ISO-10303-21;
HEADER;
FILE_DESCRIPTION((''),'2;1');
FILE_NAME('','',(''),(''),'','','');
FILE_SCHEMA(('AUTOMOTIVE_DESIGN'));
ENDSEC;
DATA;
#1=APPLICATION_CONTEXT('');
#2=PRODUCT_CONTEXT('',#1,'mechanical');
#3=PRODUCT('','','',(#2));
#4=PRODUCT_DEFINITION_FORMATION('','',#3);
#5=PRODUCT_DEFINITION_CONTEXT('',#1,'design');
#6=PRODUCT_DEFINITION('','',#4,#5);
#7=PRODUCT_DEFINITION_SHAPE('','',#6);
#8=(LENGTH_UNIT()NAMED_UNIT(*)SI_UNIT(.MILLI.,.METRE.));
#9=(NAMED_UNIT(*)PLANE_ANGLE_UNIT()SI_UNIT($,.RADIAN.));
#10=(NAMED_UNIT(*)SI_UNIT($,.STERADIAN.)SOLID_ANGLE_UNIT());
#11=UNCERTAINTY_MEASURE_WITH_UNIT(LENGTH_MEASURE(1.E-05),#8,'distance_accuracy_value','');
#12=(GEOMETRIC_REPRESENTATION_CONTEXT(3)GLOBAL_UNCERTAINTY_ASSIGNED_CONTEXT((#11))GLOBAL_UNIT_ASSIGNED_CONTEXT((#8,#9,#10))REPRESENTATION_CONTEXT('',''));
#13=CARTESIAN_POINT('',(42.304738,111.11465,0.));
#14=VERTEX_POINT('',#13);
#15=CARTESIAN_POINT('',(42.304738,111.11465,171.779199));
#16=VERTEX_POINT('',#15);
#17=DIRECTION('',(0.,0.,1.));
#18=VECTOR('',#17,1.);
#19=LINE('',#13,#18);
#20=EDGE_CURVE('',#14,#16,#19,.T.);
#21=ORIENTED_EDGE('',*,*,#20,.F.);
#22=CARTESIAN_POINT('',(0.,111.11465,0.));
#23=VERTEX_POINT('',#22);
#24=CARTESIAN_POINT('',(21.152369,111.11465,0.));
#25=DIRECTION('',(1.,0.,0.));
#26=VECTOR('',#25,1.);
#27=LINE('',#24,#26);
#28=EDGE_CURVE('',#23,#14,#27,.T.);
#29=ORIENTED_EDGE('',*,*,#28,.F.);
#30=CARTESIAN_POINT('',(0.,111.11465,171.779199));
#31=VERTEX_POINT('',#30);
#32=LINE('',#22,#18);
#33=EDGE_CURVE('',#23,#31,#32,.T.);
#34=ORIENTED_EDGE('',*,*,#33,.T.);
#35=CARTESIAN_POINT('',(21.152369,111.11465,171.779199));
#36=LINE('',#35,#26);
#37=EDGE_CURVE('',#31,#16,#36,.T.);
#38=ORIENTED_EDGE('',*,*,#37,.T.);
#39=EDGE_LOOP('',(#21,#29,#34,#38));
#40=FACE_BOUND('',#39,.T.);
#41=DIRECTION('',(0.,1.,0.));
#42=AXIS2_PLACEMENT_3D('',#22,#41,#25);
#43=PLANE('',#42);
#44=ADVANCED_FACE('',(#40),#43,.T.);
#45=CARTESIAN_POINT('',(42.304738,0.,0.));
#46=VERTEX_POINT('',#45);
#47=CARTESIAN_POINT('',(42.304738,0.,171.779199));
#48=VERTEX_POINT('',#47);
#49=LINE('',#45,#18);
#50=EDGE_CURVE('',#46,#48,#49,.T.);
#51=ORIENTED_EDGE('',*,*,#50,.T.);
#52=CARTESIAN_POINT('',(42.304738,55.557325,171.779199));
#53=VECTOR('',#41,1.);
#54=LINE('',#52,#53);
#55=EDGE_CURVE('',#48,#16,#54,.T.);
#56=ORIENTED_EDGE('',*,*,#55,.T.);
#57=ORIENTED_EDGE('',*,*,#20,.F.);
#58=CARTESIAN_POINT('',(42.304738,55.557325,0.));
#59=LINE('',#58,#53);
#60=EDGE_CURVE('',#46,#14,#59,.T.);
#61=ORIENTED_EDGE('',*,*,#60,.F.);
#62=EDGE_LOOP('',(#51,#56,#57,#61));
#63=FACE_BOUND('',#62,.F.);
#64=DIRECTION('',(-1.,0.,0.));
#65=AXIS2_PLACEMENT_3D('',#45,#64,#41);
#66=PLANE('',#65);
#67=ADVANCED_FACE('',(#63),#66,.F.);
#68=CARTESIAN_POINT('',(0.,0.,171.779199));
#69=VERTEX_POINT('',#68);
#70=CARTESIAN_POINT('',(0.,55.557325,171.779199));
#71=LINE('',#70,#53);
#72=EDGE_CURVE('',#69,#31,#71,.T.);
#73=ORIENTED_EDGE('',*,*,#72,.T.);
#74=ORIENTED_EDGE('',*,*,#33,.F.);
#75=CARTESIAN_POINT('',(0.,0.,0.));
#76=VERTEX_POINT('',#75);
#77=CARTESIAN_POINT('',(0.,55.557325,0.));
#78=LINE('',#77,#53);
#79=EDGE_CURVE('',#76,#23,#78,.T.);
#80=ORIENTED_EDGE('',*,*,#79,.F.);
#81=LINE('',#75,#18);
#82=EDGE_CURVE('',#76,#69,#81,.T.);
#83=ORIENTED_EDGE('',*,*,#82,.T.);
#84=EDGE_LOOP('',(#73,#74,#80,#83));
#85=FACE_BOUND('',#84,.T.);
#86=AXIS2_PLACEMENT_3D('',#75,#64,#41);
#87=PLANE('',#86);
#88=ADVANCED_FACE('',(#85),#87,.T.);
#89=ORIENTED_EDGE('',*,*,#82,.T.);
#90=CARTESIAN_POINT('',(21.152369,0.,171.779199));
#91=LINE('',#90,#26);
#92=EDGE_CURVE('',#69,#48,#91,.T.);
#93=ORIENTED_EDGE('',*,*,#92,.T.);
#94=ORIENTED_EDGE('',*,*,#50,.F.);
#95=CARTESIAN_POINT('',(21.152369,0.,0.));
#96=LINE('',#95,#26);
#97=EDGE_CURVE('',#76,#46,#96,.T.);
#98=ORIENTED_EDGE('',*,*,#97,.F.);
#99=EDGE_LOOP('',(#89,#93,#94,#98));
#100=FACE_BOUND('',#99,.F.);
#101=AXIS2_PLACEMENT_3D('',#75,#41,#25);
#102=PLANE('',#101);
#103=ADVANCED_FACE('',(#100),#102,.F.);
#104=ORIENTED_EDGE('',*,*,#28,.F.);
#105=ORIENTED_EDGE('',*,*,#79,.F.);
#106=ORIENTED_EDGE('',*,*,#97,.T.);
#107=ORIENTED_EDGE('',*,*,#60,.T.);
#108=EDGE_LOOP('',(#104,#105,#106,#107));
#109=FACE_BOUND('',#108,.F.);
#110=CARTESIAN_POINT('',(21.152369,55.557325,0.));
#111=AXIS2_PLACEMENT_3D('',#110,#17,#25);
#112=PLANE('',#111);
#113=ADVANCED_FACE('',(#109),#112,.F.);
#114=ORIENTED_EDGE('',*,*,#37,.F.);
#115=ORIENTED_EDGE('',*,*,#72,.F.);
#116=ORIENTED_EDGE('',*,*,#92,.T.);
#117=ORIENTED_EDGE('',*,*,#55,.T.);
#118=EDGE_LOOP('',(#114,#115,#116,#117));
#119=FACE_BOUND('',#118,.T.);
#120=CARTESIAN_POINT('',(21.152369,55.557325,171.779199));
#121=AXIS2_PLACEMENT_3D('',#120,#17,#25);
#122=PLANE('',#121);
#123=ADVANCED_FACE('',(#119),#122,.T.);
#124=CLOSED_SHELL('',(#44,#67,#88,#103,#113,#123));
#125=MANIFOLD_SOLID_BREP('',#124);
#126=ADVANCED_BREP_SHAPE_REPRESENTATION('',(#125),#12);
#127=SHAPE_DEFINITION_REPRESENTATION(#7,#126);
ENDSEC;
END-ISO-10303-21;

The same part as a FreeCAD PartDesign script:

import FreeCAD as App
import Part
import Sketcher
Q = App.Units.Quantity

doc = App.newDocument("Part")
body = doc.addObject("PartDesign::Body", "Body")

# Sketch on XY plane
sketch1 = body.newObject("Sketcher::SketchObject", "Sketch")
sketch1.AttachmentSupport = (doc.getObject("XY_Plane"), [""])
sketch1.MapMode = "FlatFace"
sketch1.addGeometry(Part.LineSegment(App.Vector(0, 111.11465, 0), App.Vector(0, 0, 0)), False)
sketch1.addGeometry(Part.LineSegment(App.Vector(0, 0, 0), App.Vector(42.304738, 0, 0)), False)
sketch1.addGeometry(Part.LineSegment(App.Vector(42.304738, 0, 0), App.Vector(42.304738, 111.11465, 0)), False)
sketch1.addGeometry(Part.LineSegment(App.Vector(42.304738, 111.11465, 0), App.Vector(0, 111.11465, 0)), False)
sketch1.addConstraint(Sketcher.Constraint("Coincident", 0, 2, 1, 1))
sketch1.addConstraint(Sketcher.Constraint("Coincident", 1, 2, 2, 1))
sketch1.addConstraint(Sketcher.Constraint("Coincident", 2, 2, 3, 1))
sketch1.addConstraint(Sketcher.Constraint("Coincident", 3, 2, 0, 1))
sketch1.addConstraint(Sketcher.Constraint("Vertical", 0))
sketch1.addConstraint(Sketcher.Constraint("Horizontal", 1))
sketch1.addConstraint(Sketcher.Constraint("Vertical", 2))
sketch1.addConstraint(Sketcher.Constraint("Horizontal", 3))
sketch1.addConstraint(Sketcher.Constraint("Coincident", 0, 2, -1, 1))
sketch1.addConstraint(Sketcher.Constraint("DistanceX", 1, 1, 1, 2, Q("42.304739 mm")))
sketch1.addConstraint(Sketcher.Constraint("DistanceY", 0, 2, 0, 1, Q("111.114651 mm")))
pad1 = body.newObject("PartDesign::Pad", "Pad")
pad1.Profile = sketch1
pad1.Length = 171.779199

doc.recompute()
